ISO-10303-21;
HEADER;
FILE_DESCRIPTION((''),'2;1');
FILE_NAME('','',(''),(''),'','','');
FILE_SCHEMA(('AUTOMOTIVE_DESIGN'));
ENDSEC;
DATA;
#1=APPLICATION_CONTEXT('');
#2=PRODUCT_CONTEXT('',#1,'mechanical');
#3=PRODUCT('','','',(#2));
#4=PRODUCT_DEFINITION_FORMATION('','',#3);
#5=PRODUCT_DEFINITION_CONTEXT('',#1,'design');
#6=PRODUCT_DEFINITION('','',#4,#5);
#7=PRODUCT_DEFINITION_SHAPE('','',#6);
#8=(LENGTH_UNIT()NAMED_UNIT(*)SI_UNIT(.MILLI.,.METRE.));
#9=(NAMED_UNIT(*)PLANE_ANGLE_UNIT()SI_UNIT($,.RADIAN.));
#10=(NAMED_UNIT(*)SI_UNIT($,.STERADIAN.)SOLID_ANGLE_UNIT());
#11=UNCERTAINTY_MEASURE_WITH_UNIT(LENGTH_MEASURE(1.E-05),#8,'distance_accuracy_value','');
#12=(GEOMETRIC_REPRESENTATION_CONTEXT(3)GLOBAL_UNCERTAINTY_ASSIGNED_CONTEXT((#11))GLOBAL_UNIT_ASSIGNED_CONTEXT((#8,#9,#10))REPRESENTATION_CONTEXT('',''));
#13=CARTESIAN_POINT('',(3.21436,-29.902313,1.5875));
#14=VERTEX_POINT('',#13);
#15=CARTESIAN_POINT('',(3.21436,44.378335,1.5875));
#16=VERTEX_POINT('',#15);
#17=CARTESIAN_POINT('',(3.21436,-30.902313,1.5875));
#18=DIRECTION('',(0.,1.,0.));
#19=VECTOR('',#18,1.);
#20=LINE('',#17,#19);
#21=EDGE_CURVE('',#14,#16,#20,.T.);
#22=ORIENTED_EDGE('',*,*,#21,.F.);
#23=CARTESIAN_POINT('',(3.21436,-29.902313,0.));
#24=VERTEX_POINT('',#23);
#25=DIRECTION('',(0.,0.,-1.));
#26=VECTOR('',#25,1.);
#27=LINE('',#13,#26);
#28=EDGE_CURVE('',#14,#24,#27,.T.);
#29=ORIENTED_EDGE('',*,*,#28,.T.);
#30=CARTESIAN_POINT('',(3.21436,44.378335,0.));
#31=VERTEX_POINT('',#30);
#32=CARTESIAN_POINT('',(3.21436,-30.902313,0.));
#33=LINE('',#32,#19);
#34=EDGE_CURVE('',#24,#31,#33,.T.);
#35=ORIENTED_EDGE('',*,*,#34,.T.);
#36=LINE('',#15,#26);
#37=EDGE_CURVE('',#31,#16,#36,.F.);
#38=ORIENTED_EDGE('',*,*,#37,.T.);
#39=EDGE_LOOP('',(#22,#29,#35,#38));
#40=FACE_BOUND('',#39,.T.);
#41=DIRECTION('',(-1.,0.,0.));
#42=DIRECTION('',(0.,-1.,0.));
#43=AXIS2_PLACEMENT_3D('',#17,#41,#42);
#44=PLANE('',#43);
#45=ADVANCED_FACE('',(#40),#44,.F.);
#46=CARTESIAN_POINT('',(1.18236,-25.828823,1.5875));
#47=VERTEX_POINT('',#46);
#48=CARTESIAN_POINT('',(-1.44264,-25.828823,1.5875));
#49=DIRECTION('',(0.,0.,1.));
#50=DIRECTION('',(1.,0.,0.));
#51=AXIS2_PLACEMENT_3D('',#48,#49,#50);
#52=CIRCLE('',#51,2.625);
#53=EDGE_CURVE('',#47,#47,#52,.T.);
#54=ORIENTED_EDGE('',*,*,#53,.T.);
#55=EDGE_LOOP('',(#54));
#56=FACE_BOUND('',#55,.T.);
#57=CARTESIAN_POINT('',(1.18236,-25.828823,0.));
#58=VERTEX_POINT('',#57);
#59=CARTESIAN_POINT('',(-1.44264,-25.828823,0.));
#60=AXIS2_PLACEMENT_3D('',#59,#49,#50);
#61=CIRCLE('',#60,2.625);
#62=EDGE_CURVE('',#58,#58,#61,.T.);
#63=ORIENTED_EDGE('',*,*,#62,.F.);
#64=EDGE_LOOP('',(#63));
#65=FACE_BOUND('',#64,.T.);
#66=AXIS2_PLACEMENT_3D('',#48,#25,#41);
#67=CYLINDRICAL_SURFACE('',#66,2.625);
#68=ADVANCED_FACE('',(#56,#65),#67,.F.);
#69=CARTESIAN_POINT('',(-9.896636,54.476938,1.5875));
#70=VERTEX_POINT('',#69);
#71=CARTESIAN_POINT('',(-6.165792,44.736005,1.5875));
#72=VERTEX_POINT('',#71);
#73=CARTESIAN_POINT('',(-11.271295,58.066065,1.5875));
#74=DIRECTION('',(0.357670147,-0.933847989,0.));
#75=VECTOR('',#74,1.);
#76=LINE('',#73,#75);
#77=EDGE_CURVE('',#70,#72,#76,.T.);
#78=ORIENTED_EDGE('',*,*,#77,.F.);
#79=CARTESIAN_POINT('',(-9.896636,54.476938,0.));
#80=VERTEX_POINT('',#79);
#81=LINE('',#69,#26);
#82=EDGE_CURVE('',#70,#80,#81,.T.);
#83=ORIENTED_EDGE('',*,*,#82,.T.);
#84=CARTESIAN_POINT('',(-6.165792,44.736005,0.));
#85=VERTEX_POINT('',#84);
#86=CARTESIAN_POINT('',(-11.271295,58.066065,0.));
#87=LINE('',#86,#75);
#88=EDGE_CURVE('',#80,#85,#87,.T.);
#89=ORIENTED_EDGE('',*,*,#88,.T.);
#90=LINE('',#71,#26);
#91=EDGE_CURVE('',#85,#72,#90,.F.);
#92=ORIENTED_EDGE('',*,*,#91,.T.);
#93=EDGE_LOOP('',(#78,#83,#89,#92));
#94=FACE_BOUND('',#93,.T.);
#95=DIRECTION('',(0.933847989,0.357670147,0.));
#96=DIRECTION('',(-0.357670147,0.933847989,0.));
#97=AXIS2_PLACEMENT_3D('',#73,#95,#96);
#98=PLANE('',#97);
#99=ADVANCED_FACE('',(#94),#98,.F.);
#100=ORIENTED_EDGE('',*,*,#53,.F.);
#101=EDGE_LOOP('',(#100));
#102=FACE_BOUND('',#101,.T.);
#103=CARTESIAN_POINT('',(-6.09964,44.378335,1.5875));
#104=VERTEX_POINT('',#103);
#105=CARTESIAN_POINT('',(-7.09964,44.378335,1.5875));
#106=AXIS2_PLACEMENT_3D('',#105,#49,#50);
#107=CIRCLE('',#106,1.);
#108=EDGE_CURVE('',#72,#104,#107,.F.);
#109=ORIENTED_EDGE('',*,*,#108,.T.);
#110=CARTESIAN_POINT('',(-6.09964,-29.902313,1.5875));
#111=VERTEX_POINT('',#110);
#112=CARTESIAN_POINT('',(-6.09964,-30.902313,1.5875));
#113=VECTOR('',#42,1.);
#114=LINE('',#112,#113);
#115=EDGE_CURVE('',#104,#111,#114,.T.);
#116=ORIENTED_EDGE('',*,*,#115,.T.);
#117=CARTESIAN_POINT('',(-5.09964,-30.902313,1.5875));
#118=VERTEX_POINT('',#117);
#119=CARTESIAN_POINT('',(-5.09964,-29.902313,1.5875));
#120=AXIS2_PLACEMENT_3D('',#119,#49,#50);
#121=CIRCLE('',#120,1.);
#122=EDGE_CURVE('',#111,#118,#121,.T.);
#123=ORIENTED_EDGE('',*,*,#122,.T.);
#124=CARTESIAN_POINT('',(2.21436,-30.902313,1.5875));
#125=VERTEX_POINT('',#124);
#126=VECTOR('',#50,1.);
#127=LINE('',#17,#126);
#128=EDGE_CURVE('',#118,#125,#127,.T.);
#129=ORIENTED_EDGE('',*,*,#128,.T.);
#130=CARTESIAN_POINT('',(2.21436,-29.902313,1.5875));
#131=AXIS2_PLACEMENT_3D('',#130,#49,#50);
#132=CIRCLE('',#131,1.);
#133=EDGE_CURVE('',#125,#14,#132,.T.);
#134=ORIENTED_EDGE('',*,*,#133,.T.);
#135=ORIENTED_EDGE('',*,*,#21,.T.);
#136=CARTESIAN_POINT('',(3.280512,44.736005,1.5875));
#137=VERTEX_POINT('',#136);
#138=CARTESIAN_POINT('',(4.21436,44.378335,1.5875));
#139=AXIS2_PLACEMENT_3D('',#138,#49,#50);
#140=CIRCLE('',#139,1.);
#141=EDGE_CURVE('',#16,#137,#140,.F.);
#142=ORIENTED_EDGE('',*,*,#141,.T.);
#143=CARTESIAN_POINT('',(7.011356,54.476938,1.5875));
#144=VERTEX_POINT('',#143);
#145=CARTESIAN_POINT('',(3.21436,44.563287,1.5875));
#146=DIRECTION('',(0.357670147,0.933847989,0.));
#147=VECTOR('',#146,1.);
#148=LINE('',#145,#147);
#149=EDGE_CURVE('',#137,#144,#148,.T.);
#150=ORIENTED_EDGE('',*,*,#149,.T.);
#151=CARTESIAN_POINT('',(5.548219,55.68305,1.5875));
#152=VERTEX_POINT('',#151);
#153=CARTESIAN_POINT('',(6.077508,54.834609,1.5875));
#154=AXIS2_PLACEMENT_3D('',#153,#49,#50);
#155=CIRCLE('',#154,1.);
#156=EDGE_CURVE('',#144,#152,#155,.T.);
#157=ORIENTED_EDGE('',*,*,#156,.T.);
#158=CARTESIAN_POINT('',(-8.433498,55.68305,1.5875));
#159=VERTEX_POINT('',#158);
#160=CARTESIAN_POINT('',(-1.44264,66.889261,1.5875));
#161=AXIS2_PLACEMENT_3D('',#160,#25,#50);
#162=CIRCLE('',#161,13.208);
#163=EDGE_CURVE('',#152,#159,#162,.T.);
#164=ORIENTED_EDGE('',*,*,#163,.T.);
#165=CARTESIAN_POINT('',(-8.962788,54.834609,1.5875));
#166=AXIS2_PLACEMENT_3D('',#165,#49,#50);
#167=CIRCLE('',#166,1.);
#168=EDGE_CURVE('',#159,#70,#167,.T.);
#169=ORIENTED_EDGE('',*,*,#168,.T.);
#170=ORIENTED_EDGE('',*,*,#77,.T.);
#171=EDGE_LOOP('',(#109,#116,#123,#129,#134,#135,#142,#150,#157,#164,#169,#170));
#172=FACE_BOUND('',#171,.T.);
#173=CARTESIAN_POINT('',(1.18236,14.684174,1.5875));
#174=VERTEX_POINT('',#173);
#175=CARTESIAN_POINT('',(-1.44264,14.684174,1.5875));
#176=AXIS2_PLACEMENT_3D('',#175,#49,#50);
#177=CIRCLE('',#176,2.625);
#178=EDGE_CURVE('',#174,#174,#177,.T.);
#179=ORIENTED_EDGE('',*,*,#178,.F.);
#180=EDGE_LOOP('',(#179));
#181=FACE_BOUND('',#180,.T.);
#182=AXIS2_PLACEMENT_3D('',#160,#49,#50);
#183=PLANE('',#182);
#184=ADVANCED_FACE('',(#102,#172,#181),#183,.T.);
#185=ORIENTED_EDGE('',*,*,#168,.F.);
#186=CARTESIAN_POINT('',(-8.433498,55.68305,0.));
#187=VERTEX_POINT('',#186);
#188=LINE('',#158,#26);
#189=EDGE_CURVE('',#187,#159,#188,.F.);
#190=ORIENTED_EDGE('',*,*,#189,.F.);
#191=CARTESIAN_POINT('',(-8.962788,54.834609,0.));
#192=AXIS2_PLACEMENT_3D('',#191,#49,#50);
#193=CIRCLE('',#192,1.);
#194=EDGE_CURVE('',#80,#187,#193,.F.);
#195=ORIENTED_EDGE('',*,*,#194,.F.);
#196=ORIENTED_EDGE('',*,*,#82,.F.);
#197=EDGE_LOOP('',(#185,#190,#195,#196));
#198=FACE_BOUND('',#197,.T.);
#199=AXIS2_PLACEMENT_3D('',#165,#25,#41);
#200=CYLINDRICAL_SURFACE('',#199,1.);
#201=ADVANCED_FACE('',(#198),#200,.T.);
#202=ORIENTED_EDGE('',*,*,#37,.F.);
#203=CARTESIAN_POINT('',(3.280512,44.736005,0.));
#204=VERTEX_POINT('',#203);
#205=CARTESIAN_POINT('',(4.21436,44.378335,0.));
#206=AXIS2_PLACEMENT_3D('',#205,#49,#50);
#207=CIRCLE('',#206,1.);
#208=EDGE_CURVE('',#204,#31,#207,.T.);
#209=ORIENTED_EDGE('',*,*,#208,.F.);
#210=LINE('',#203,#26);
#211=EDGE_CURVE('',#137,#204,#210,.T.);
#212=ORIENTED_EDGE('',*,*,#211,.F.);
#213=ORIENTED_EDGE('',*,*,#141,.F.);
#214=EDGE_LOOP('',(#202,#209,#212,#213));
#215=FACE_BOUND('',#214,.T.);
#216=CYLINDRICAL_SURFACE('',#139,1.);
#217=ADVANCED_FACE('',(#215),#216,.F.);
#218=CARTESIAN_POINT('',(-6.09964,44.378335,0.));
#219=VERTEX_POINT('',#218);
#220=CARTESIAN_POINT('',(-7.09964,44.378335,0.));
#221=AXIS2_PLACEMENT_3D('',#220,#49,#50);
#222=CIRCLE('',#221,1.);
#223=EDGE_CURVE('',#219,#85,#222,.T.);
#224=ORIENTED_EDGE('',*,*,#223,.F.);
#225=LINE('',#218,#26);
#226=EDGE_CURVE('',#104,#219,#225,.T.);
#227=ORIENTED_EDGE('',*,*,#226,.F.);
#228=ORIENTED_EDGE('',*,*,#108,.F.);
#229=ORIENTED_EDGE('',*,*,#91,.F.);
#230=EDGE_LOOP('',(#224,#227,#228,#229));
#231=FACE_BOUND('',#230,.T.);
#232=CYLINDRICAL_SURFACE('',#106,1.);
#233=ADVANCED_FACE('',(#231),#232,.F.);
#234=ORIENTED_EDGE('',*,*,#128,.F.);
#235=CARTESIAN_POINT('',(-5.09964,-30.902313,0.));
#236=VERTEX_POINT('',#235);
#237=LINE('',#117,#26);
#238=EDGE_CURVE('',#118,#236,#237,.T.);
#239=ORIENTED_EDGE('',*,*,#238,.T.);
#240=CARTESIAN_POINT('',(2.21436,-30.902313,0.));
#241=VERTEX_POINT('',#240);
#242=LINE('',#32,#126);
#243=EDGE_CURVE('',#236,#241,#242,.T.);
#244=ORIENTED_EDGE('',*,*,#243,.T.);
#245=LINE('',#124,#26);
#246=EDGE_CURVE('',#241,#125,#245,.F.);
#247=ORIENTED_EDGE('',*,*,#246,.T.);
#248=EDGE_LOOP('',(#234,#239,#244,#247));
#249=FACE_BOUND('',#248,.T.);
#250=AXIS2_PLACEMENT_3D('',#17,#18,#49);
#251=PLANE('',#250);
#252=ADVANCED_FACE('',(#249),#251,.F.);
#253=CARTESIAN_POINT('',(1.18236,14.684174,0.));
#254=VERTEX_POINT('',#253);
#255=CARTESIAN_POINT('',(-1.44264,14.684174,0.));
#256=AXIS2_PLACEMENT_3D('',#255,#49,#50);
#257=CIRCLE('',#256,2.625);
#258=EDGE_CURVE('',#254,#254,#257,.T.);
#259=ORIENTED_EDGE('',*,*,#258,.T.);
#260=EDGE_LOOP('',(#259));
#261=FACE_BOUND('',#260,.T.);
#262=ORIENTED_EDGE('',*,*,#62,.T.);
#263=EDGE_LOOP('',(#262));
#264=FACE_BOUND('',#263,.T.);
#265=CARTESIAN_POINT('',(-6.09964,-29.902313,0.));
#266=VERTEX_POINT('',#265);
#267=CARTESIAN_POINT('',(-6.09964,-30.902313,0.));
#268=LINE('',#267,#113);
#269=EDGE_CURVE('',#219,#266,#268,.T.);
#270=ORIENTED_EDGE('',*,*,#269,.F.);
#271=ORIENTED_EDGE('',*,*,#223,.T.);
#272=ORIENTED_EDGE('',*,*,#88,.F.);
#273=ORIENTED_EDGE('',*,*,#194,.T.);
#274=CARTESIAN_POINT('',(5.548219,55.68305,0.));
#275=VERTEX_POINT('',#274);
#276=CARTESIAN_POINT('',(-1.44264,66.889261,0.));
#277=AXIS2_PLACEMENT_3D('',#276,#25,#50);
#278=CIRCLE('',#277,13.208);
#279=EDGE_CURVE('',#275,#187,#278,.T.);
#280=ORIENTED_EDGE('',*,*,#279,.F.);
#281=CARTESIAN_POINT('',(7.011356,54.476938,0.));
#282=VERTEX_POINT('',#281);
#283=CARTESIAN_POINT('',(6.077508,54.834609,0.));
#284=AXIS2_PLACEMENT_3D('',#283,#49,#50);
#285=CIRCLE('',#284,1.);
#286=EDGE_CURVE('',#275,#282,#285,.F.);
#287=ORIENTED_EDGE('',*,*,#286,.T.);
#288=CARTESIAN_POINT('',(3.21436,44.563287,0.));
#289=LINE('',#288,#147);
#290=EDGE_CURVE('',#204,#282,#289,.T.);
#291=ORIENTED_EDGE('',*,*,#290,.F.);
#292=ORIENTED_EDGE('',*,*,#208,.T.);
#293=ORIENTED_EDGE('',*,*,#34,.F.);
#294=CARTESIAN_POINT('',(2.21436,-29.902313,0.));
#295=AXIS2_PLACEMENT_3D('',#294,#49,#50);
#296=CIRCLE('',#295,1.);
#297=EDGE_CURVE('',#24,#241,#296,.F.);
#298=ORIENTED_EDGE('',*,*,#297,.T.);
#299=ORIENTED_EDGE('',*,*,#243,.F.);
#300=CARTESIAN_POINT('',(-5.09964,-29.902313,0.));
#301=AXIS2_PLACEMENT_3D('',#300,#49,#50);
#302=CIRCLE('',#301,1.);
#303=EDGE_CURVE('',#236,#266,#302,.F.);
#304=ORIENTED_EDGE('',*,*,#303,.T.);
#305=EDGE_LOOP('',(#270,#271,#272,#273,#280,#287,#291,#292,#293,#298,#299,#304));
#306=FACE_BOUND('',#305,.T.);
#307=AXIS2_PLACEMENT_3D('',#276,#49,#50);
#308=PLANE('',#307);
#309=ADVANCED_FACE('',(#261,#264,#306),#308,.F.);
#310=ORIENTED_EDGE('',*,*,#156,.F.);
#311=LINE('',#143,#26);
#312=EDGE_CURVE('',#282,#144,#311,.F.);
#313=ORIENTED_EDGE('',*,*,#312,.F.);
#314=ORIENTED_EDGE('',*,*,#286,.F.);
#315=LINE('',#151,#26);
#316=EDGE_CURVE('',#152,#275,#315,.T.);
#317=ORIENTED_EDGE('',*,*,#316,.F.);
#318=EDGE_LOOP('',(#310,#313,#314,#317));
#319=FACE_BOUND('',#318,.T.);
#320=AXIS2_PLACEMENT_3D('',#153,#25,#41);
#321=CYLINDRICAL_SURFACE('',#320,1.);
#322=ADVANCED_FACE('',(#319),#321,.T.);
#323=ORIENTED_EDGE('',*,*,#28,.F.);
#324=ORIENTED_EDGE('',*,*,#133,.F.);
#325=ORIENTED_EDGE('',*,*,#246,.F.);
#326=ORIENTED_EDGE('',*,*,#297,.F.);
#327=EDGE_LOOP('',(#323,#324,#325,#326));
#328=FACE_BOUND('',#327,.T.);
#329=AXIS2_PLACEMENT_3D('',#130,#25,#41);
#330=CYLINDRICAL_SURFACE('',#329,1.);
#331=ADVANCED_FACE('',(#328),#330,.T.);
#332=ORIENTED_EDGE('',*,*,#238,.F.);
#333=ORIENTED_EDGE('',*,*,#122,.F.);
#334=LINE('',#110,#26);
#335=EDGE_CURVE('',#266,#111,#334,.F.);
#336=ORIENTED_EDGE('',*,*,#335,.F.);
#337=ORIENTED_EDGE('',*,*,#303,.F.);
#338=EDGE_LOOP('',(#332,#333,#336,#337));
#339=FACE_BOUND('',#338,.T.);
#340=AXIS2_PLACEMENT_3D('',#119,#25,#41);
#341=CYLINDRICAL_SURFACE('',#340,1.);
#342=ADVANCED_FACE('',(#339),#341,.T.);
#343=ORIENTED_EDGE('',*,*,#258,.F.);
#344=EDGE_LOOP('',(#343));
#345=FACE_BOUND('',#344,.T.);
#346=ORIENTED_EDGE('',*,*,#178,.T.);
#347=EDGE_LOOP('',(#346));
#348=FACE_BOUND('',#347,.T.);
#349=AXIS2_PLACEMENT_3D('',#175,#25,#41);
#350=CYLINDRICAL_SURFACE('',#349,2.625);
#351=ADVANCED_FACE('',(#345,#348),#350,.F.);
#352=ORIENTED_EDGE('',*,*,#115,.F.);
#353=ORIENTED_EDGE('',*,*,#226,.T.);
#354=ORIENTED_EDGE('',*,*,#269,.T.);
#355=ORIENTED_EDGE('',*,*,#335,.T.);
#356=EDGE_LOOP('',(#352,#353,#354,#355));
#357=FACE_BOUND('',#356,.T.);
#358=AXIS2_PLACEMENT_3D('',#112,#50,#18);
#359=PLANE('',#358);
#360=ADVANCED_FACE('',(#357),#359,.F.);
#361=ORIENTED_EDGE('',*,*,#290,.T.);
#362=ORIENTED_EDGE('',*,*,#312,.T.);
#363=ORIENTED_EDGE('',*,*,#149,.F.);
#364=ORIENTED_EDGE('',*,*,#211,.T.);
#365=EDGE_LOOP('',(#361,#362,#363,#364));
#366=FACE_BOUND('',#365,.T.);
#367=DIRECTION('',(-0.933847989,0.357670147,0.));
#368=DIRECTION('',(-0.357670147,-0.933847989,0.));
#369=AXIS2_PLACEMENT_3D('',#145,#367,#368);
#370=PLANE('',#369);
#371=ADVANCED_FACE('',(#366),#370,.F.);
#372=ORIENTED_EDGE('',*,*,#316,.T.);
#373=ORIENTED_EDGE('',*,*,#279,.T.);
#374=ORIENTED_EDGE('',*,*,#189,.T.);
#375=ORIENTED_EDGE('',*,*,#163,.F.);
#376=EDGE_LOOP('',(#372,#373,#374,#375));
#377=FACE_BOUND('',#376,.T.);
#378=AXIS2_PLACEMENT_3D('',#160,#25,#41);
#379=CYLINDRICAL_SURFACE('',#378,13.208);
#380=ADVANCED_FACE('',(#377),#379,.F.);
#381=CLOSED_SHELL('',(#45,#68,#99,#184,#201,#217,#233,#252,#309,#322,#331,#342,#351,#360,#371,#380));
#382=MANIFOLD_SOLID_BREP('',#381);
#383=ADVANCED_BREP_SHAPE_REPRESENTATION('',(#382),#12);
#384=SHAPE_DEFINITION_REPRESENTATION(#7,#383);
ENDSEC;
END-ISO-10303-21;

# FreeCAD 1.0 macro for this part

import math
import FreeCAD as App
import Part
import Sketcher
Q = App.Units.Quantity


def edges_at(feature, points):
    """Names of the edges that pass closest to the given points."""
    edges = feature.Shape.Edges
    near = lambda p: min(range(len(edges)), key=lambda i: edges[i].distToShape(Part.Vertex(*p))[0])
    return sorted({f"Edge{near(p) + 1}" for p in points})

doc = App.newDocument("Part")
body = doc.addObject("PartDesign::Body", "Body")

sketch1 = body.newObject("Sketcher::SketchObject", "Sketch")
sketch1.AttachmentSupport = (doc.getObject("XY_Plane"), [""])
sketch1.MapMode = "FlatFace"
sketch1.addGeometry([
    Part.LineSegment(App.Vector(-11.271295, 58.066065, 0), App.Vector(-6.09964, 44.563287, 0)),
    Part.LineSegment(App.Vector(-6.09964, 44.563287, 0), App.Vector(-6.09964, -30.902313, 0)),
    Part.LineSegment(App.Vector(-6.09964, -30.902313, 0), App.Vector(3.21436, -30.902313, 0)),
    Part.LineSegment(App.Vector(3.21436, -30.902313, 0), App.Vector(3.21436, 44.563287, 0)),
    Part.LineSegment(App.Vector(3.21436, 44.563287, 0), App.Vector(8.386016, 58.066065, 0)),
    Part.ArcOfCircle(Part.Circle(App.Vector(-1.44264, 66.889261, 0), App.Vector(0, 0, 1), 13.208), math.radians(-138.085639), math.radians(-41.914361)),
    Part.Circle(App.Vector(-1.44264, -25.828823, 0), App.Vector(0, 0, 1), 2.625),
    Part.Circle(App.Vector(-1.44264, 14.684174, 0), App.Vector(0, 0, 1), 2.625),
], False)
sketch1.addConstraint([
    Sketcher.Constraint("Coincident", 0, 2, 1, 1),
    Sketcher.Constraint("Coincident", 1, 2, 2, 1),
    Sketcher.Constraint("Coincident", 2, 2, 3, 1),
    Sketcher.Constraint("Coincident", 3, 2, 4, 1),
    Sketcher.Constraint("Coincident", 4, 2, 5, 2),
    Sketcher.Constraint("Coincident", 5, 1, 0, 1),
    Sketcher.Constraint("Vertical", 1),
    Sketcher.Constraint("Horizontal", 2),
    Sketcher.Constraint("Vertical", 3),
    Sketcher.Constraint("Equal", 6, 7),
    Sketcher.Constraint("Horizontal", 0, 2, 3, 2),
    Sketcher.Constraint("Horizontal", 4, 2, 5, 1),
    Sketcher.Constraint("Vertical", 5, 3, 6, 3),
    Sketcher.Constraint("Vertical", 6, 3, 7, 3),
    Sketcher.Constraint("Equal", 0, 4),
    Sketcher.Constraint("Radius", 5, Q("0.52 in")),
    Sketcher.Constraint("Diameter", 6, Q("5.25 mm")),
    Sketcher.Constraint("DistanceY", 6, 3, 7, 3, Q("1.5949999 in")),
    Sketcher.Constraint("DistanceX", 2, 1, 2, 2, Q("9.314 mm")),
    Sketcher.Constraint("DistanceY", 1, 2, 1, 1, Q("75.4656 mm")),
    Sketcher.Constraint("Distance", 0, Q("14.459288 mm")),
    Sketcher.Constraint("DistanceX", 5, 3, -1, 1, Q("1.44264 mm")),
    Sketcher.Constraint("DistanceY", -1, 1, 5, 3, Q("66.889261 mm")),
    Sketcher.Constraint("DistanceY", 6, 3, 0, 2, Q("70.39211 mm")),
    Sketcher.Constraint("DistanceY", 7, 3, 4, 2, Q("43.38189 mm")),
])
pad1 = body.newObject("PartDesign::Pad", "Pad")
pad1.Profile = sketch1
pad1.Length = Q("0.0625 in")
doc.recompute()

fillet = body.newObject("PartDesign::Fillet", "Fillet")
fillet.Base = (pad1, edges_at(pad1, [
    (3.214, -30.902, 0.794),
    (-6.1, -30.902, 0.794),
    (-6.1, 44.563, 0.794),
    (-11.271, 58.066, 0.794),
    (8.386, 58.066, 0.794),
    (3.214, 44.563, 0.794),
]))
fillet.Radius = 1

doc.recompute()
